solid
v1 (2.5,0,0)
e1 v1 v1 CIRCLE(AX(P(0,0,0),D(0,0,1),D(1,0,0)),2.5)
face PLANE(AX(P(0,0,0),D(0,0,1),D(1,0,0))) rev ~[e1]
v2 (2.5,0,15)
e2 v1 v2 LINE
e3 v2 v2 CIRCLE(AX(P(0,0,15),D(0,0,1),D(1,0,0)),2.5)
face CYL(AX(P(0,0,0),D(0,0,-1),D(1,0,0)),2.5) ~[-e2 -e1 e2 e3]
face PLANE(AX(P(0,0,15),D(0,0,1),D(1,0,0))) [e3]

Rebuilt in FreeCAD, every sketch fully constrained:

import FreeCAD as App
import Part
import Sketcher
from FreeCAD import Vector

doc = App.newDocument("Part")
body = doc.addObject("PartDesign::Body", "Body")

# Sketch on XY plane
sketch1 = body.newObject("Sketcher::SketchObject", "Sketch")
sketch1.AttachmentSupport = (doc.getObject("XY_Plane"), [""])
sketch1.MapMode = "FlatFace"
sketch1.addGeometry(Part.Circle(Vector(0, 0, 0), Vector(0, 0, 1), 2.5), False)
sketch1.addConstraint([
    Sketcher.Constraint("Coincident", 0, 3, -1, 1),
    Sketcher.Constraint("Diameter", 0, 5.0),
])
pad1 = body.newObject("PartDesign::Pad", "Pad")
pad1.Profile = sketch1
pad1.Length = 15

doc.recompute()
